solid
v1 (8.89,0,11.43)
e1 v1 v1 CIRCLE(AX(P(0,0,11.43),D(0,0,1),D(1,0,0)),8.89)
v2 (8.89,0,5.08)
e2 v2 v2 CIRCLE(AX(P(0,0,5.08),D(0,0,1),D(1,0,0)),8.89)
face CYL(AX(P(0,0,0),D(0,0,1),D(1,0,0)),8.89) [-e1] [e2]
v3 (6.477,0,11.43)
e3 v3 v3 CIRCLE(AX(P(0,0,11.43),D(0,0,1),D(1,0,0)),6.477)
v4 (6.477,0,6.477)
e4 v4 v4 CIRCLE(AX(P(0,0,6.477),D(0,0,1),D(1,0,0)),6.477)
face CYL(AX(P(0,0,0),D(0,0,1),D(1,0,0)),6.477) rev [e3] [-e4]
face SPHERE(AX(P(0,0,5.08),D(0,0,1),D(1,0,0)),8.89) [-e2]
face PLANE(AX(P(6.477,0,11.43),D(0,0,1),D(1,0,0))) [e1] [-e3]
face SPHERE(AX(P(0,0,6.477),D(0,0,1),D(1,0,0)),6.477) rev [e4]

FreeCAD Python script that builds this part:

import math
import FreeCAD as App
import Part
import Sketcher
Q = App.Units.Quantity

doc = App.newDocument("Part")
body = doc.addObject("PartDesign::Body", "Body")

# Sketch on XZ plane
sketch1 = doc.addObject("Sketcher::SketchObject", "Sketch")
body.addObject(sketch1)
sketch1.AttachmentSupport = (doc.XZ_Plane, [""])
sketch1.MapMode = "FlatFace"
sketch1.addGeometry(Part.LineSegment(App.Vector(0, -3.8, 0), App.Vector(0, 0, 0)), False)
sketch1.addGeometry(Part.ArcOfCircle(Part.Circle(App.Vector(0, 6.5, 0), App.Vector(0, 0, 1), 6.5), math.radians(-90), math.radians(0)), False)
sketch1.addGeometry(Part.LineSegment(App.Vector(6.5, 6.5, 0), App.Vector(6.5, 11.4, 0)), False)
sketch1.addGeometry(Part.LineSegment(App.Vector(6.5, 11.4, 0), App.Vector(8.9, 11.4, 0)), False)
sketch1.addGeometry(Part.LineSegment(App.Vector(8.9, 11.4, 0), App.Vector(8.9, 5.1, 0)), False)
sketch1.addGeometry(Part.ArcOfCircle(Part.Circle(App.Vector(0, 5.1, 0), App.Vector(0, 0, 1), 8.9), math.radians(-90), math.radians(0)), False)
sketch1.addConstraint(Sketcher.Constraint("Coincident", 0, 2, 1, 1))
sketch1.addConstraint(Sketcher.Constraint("Tangent", 1, 2, 2, 1))
sketch1.addConstraint(Sketcher.Constraint("Coincident", 2, 2, 3, 1))
sketch1.addConstraint(Sketcher.Constraint("Coincident", 3, 2, 4, 1))
sketch1.addConstraint(Sketcher.Constraint("Tangent", 4, 2, 5, 2))
sketch1.addConstraint(Sketcher.Constraint("Coincident", 5, 1, 0, 1))
sketch1.addConstraint(Sketcher.Constraint("Vertical", 0))
sketch1.addConstraint(Sketcher.Constraint("Vertical", 2))
sketch1.addConstraint(Sketcher.Constraint("Horizontal", 3))
sketch1.addConstraint(Sketcher.Constraint("Vertical", 4))
sketch1.addConstraint(Sketcher.Constraint("Coincident", 0, 2, -1, 1))
sketch1.addConstraint(Sketcher.Constraint("PointOnObject", 1, 3, -2))
sketch1.addConstraint(Sketcher.Constraint("PointOnObject", 5, 3, -2))
sketch1.addConstraint(Sketcher.Constraint("Radius", 5, Q("0.35 in")))
sketch1.addConstraint(Sketcher.Constraint("Radius", 1, Q("0.255 in")))
sketch1.addConstraint(Sketcher.Constraint("DistanceY", 0, 1, 0, 2, Q("0.15 in")))
sketch1.addConstraint(Sketcher.Constraint("DistanceY", 4, 2, 4, 1, Q("0.25 in")))
revolution = doc.addObject("PartDesign::Revolution", "Revolution")
body.addObject(revolution)
revolution.Profile = sketch1
revolution.ReferenceAxis = (sketch1, ["V_Axis"])
revolution.Angle = 360

doc.recompute()
